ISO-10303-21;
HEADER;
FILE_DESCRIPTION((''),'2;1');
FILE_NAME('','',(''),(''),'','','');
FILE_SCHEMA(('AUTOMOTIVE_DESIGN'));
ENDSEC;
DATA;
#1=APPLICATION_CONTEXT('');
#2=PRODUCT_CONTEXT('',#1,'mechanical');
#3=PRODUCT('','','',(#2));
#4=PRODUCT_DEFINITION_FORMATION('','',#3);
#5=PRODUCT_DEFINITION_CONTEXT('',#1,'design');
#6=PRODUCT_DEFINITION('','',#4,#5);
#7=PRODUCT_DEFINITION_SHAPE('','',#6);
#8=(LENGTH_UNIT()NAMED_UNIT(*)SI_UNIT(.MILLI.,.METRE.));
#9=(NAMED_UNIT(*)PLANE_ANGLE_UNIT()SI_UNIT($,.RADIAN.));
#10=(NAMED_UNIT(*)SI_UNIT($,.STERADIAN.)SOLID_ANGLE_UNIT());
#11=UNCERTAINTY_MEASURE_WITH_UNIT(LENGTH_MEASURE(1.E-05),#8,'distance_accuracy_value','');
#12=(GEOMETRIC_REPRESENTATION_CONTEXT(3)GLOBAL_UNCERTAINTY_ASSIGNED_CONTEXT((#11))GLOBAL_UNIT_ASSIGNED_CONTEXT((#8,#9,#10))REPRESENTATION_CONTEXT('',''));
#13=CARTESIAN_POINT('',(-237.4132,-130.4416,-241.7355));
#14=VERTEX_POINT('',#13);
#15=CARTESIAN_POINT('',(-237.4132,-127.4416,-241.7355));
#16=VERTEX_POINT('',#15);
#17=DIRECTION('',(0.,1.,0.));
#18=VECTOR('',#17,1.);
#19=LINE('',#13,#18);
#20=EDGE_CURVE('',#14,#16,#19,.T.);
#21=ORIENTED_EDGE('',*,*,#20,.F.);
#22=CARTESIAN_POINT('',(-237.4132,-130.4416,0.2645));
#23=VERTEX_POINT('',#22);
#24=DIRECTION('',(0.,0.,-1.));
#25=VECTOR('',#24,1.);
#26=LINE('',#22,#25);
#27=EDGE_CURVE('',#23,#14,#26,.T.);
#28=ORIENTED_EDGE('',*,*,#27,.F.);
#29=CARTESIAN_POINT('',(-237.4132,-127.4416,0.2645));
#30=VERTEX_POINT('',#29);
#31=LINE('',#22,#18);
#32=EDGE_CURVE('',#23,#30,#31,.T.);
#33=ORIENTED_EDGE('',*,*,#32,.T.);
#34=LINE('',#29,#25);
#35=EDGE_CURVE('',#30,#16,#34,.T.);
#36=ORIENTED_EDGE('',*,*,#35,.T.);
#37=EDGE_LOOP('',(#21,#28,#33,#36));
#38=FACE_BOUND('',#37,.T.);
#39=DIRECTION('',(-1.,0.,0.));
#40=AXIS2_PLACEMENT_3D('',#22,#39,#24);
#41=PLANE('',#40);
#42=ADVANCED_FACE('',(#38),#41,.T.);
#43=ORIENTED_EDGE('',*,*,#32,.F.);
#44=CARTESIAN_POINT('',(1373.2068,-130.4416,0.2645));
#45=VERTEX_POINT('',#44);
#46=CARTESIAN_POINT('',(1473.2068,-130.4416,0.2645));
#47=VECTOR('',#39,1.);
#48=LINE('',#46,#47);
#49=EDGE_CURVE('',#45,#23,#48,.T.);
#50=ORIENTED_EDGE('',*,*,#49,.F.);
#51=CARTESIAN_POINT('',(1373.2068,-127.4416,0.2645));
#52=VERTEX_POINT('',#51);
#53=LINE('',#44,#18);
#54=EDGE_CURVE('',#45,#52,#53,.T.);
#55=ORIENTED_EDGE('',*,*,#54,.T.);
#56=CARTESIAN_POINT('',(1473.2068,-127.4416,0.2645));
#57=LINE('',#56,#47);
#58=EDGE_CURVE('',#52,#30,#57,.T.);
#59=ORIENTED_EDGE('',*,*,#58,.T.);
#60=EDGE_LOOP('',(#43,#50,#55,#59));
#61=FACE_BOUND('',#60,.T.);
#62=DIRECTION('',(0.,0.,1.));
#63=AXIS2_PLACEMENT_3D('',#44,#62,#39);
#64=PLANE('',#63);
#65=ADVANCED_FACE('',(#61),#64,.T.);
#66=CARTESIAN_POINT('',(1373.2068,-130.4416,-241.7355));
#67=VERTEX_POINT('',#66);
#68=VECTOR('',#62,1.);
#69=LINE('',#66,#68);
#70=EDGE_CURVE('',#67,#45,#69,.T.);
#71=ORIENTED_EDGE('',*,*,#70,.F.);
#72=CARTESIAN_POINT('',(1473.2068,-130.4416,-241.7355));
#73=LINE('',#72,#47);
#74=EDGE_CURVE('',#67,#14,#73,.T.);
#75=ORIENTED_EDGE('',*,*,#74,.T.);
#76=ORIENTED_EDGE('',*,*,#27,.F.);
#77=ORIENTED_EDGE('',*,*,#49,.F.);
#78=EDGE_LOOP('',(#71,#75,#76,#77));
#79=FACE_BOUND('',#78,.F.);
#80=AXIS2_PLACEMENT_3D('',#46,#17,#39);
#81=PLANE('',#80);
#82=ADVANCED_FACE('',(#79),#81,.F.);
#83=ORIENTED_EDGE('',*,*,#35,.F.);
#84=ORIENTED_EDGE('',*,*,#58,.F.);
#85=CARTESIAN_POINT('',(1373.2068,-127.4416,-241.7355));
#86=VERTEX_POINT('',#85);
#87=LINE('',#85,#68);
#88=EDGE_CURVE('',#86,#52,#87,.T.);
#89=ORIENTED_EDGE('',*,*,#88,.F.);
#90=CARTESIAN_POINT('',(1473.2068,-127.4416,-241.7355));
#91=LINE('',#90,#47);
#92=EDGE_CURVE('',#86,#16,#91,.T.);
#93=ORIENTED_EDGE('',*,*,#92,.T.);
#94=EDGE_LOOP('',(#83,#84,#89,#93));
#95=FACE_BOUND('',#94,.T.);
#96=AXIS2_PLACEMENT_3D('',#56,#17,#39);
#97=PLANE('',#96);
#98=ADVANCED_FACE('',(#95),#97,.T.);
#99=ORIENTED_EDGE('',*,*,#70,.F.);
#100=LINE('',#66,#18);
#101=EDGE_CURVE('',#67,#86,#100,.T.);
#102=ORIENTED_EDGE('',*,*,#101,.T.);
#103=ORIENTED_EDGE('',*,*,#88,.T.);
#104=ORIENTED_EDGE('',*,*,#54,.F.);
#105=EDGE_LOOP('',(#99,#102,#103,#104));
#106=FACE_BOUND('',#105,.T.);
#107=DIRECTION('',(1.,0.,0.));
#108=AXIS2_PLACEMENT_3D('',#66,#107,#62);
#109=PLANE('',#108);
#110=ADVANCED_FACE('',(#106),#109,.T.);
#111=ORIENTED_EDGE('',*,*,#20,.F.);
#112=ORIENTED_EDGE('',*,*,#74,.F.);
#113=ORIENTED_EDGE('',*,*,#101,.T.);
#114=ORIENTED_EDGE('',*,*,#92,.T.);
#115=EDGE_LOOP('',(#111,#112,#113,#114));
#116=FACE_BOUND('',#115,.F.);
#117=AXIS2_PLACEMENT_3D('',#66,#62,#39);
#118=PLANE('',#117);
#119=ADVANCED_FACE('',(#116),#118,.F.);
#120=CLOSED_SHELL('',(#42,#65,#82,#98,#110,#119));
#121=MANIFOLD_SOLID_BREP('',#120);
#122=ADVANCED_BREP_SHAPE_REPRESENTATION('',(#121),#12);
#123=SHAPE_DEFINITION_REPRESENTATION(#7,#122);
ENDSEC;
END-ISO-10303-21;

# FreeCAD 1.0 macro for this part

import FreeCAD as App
import Part
import Sketcher
from FreeCAD import Vector
Q = App.Units.Quantity


def add_polygon(sketch, points):
    """Adds a closed chain of lines whose ends are joined by coincident constraints."""
    first, n = sketch.GeometryCount, len(points)
    for a, b in zip(points, points[1:] + points[:1]):
        sketch.addGeometry(Part.LineSegment(App.Vector(*a, 0), App.Vector(*b, 0)), False)
    for i in range(n):
        sketch.addConstraint(Sketcher.Constraint("Coincident", first + i, 2, first + (i + 1) % n, 1))

doc = App.newDocument("Part")
body = doc.addObject("PartDesign::Body", "Body")

# Sketch on XZ plane
sketch1 = doc.addObject("Sketcher::SketchObject", "Sketch")
body.addObject(sketch1)
sketch1.AttachmentSupport = (doc.XZ_Plane, [""])
sketch1.MapMode = "FlatFace"
sketch1.AttachmentOffset = App.Placement(Vector(0, 0, 130.4416), App.Rotation())
add_polygon(sketch1, [(-237, -242), (-237, 0), (1373, 0), (1373, -242)])  # lines 0-3
sketch1.addConstraint([
    Sketcher.Constraint("Vertical", 0),
    Sketcher.Constraint("Horizontal", 1),
    Sketcher.Constraint("Vertical", 2),
    Sketcher.Constraint("Horizontal", 3),
    Sketcher.Constraint("DistanceY", 0, 1, 0, 2, Q("242 mm")),
    Sketcher.Constraint("DistanceX", 1, 1, 1, 2, Q("1610.62 mm")),
    Sketcher.Constraint("DistanceX", 0, 2, -1, 1, Q("237.4132 mm")),
    Sketcher.Constraint("DistanceY", -1, 1, 0, 2, Q("0.2645 mm")),
])
pad1 = doc.addObject("PartDesign::Pad", "Pad")
body.addObject(pad1)
pad1.Profile = sketch1
pad1.Length = 3
pad1.Reversed = True

doc.recompute()
